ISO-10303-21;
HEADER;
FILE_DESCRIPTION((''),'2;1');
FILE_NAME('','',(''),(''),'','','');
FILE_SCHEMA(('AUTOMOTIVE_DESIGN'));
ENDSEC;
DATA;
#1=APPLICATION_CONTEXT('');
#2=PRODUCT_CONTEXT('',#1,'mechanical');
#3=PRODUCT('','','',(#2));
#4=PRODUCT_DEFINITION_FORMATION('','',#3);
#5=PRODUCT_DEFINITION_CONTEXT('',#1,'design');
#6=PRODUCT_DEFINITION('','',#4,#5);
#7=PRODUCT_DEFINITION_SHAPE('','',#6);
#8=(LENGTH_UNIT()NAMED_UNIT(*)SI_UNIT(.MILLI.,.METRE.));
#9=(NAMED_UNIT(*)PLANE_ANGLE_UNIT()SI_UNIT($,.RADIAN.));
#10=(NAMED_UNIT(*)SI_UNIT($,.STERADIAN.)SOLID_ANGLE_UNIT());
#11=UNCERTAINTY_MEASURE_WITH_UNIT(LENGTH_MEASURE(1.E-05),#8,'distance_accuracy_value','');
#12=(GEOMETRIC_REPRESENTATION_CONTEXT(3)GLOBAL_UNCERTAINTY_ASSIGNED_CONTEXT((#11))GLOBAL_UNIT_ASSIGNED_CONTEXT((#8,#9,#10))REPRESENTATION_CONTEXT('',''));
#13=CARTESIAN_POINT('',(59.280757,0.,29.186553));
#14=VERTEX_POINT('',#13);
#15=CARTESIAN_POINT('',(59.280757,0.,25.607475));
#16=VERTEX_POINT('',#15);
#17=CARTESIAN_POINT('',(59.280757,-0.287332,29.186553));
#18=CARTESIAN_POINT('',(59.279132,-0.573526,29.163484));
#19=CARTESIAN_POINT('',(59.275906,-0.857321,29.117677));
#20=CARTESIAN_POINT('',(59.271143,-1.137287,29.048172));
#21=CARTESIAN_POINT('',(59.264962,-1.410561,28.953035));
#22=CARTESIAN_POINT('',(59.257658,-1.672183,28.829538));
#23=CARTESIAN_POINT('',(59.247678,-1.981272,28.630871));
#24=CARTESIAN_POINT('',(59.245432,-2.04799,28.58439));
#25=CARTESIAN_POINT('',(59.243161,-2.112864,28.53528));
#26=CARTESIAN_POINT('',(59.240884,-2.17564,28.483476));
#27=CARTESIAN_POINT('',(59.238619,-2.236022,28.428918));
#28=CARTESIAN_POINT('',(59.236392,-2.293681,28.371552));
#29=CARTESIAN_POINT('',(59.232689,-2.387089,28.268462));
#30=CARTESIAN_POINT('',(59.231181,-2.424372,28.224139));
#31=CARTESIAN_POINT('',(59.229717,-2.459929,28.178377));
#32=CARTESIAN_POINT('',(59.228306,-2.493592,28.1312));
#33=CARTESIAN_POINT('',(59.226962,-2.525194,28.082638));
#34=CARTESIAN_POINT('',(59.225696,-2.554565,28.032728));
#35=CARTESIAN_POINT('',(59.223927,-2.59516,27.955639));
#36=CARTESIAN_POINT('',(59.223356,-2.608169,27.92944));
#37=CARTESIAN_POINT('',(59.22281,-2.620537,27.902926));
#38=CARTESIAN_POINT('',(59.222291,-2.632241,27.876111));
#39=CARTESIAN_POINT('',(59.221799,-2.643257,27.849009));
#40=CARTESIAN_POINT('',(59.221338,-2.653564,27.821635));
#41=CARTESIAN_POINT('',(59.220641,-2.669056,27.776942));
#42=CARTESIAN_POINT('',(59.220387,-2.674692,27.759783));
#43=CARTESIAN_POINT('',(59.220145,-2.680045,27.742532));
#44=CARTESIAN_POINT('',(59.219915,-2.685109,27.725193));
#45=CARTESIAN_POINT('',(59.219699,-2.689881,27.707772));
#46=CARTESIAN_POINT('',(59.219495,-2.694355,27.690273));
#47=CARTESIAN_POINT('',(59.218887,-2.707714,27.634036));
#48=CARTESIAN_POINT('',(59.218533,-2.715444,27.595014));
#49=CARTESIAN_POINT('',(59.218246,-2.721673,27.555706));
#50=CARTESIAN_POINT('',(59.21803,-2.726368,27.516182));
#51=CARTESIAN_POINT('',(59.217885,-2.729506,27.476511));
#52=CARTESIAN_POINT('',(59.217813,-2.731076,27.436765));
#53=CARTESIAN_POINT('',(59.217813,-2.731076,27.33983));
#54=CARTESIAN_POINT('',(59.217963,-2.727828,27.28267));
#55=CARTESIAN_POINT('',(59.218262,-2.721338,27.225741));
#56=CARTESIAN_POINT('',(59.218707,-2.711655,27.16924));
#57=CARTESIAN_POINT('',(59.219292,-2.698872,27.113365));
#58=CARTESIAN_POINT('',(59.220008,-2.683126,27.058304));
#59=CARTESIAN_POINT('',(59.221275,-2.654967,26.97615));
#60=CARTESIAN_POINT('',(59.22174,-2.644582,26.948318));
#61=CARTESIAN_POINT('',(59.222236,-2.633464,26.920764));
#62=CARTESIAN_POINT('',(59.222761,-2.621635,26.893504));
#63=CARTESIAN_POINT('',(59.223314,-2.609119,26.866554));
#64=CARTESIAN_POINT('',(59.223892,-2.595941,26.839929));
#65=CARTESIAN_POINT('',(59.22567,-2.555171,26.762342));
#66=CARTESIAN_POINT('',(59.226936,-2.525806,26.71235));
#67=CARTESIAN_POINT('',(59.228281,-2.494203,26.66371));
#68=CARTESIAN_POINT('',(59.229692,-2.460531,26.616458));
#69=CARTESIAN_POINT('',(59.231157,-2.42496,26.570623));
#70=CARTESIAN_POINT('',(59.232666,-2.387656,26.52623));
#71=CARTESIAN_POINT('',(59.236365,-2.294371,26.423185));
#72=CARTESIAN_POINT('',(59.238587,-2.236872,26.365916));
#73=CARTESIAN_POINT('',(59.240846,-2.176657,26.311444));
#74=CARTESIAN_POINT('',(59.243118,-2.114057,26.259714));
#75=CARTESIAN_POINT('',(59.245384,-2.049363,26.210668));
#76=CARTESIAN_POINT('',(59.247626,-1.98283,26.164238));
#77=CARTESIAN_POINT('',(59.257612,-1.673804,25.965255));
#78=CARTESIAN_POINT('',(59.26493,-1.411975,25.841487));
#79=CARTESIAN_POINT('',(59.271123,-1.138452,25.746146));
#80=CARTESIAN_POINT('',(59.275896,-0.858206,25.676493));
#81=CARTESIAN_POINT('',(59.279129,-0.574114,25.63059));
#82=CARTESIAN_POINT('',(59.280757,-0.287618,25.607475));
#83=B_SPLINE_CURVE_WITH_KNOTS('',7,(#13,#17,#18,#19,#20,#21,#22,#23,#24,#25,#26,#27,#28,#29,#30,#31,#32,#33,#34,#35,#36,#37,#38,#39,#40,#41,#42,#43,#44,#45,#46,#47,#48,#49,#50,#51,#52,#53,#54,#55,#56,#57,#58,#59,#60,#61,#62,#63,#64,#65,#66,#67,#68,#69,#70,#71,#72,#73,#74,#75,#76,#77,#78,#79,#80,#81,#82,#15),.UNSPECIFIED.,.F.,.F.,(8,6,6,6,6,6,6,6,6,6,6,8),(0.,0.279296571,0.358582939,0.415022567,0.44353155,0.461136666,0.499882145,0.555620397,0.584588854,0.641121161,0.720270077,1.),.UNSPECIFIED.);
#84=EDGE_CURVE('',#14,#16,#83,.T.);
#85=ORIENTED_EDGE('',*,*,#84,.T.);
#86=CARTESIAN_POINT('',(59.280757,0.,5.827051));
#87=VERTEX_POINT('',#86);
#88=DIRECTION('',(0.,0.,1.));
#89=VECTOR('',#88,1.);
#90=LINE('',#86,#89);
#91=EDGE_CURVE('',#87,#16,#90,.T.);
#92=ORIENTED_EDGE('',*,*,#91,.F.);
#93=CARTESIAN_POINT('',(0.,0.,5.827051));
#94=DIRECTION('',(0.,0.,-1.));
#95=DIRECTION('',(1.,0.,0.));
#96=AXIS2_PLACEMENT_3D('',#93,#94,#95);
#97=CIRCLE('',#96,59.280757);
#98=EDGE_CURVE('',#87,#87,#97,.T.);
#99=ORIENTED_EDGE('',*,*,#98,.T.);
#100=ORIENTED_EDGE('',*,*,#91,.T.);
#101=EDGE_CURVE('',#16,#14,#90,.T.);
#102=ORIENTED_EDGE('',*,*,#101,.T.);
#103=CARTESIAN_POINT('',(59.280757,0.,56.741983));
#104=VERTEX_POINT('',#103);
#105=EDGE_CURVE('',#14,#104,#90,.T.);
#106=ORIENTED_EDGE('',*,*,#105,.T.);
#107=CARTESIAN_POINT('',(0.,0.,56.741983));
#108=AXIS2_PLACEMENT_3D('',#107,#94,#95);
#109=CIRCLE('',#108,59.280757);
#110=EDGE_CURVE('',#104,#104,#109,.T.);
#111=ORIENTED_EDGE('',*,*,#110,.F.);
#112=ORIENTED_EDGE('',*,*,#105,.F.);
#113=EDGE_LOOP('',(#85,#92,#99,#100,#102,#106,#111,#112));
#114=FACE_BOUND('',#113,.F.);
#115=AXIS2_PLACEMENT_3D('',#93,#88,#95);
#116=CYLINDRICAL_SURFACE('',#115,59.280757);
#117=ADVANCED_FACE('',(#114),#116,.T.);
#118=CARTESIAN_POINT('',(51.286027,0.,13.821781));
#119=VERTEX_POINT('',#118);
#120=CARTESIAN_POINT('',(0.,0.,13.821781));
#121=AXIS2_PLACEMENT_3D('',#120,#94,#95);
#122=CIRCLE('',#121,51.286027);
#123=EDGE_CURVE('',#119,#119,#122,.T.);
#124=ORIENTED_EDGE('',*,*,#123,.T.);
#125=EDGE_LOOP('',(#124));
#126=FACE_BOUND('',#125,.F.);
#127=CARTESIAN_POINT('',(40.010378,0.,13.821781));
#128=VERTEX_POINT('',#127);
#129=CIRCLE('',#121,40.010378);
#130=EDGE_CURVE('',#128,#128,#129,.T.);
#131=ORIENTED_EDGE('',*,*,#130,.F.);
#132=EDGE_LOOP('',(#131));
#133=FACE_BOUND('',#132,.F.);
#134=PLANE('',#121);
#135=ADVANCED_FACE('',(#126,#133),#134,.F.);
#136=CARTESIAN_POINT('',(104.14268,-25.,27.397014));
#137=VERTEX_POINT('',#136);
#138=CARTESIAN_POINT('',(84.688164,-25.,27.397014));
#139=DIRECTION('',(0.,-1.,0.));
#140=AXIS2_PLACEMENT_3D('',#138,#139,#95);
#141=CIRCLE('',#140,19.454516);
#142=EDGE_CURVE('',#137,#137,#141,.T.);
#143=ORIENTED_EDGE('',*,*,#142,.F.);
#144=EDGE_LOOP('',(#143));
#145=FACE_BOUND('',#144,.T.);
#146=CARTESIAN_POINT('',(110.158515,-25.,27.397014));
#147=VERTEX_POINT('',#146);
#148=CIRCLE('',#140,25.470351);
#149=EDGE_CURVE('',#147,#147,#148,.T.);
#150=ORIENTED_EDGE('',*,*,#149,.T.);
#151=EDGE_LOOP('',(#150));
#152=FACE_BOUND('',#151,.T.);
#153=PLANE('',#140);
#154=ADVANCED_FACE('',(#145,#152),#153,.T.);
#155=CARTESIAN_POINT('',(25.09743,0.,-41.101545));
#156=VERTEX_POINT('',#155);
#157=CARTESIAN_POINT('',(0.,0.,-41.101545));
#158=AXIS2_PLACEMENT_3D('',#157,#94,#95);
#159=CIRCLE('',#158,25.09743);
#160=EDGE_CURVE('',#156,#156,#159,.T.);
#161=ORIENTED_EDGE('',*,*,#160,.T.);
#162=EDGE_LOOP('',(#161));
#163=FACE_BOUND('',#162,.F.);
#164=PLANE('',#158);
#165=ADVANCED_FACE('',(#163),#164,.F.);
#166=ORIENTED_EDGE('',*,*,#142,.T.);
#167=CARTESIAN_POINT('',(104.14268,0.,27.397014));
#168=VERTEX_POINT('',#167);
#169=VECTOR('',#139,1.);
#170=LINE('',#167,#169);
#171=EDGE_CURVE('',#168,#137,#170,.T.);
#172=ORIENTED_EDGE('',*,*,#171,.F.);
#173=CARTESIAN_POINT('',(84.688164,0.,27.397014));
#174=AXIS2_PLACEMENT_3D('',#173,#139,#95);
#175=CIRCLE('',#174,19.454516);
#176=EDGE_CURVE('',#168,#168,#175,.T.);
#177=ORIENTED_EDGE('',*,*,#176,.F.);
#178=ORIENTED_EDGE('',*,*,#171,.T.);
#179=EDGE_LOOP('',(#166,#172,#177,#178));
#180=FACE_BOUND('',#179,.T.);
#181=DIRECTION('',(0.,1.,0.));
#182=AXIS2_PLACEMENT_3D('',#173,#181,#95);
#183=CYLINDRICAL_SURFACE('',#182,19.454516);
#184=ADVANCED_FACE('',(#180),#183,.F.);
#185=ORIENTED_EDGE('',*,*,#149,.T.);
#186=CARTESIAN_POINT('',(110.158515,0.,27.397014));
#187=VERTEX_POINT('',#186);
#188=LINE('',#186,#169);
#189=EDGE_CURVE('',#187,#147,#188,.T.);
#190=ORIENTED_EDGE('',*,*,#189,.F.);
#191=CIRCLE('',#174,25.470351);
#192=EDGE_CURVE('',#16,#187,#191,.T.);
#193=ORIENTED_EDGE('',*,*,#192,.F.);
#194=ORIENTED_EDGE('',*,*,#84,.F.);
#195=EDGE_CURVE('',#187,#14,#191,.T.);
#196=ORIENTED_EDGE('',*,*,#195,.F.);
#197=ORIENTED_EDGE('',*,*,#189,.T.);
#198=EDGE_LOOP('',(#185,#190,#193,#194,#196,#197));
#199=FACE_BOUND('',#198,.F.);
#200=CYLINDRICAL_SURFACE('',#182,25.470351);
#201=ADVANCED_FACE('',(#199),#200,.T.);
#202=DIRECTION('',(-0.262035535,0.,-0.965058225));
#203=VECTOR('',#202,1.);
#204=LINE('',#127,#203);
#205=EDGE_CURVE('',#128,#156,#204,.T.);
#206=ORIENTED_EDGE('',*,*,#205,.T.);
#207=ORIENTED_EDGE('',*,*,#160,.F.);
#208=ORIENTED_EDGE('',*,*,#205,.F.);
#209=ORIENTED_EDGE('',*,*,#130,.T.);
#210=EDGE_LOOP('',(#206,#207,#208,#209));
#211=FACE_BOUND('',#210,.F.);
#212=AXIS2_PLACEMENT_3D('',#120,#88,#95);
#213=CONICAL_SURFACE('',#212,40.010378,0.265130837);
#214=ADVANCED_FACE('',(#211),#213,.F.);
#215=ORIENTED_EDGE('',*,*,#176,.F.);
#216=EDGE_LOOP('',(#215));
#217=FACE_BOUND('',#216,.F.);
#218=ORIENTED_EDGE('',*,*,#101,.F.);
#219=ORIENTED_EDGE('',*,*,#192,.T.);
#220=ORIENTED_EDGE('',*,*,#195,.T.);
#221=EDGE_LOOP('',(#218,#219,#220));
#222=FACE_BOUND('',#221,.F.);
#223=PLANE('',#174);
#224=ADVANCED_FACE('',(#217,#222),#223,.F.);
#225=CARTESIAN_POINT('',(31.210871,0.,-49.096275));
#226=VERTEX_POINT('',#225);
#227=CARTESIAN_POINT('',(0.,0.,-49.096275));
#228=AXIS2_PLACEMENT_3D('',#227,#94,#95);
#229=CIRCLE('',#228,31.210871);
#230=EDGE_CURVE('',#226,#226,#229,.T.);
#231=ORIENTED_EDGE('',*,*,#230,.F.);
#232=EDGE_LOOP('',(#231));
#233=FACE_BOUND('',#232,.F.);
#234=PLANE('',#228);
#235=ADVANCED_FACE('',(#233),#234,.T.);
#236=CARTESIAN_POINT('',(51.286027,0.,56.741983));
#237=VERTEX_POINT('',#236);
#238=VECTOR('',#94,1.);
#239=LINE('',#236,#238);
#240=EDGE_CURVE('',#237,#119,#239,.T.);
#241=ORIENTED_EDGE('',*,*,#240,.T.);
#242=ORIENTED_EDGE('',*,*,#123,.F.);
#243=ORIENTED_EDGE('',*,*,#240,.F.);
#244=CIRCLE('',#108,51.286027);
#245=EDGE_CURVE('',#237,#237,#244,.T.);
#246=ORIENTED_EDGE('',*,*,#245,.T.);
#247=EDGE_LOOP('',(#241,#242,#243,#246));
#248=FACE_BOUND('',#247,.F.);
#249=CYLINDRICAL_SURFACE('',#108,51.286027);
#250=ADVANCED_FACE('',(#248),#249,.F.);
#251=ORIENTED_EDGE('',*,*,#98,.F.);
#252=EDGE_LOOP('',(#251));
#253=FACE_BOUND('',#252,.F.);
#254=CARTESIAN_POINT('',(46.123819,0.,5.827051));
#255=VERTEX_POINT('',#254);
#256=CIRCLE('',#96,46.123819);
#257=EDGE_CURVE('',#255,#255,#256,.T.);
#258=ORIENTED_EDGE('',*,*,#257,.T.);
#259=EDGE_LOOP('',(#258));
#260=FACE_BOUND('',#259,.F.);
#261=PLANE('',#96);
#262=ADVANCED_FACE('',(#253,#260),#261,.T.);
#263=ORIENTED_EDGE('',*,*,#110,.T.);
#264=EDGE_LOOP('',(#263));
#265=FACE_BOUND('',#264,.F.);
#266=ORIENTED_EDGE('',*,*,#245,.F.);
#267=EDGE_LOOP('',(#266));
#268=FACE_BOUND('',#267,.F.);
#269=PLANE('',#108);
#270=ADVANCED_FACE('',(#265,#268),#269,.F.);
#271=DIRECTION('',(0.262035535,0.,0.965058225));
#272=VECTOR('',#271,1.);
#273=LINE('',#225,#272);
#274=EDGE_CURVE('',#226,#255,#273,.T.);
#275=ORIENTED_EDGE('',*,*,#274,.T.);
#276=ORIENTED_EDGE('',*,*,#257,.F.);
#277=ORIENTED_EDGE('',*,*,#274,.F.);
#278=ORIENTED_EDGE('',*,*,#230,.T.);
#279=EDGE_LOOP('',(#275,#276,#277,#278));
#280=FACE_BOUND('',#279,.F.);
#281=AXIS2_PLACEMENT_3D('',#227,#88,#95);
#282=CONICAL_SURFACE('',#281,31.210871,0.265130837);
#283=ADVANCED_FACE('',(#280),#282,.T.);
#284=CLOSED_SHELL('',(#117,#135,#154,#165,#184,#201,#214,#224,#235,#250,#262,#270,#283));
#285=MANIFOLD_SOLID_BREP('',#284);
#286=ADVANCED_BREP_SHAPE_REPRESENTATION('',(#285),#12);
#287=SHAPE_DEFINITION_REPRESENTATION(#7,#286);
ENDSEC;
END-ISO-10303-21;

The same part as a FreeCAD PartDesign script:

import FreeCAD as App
import Part
import Sketcher

V = App.Vector
Q = App.Units.Quantity


def add_polygon(sketch, points):
    """Adds a closed chain of lines whose ends are joined by coincident constraints."""
    first, n = sketch.GeometryCount, len(points)
    for a, b in zip(points, points[1:] + points[:1]):
        sketch.addGeometry(Part.LineSegment(App.Vector(*a, 0), App.Vector(*b, 0)), False)
    for i in range(n):
        sketch.addConstraint(Sketcher.Constraint("Coincident", first + i, 2, first + (i + 1) % n, 1))

doc = App.newDocument("Part")
body = doc.addObject("PartDesign::Body", "Body")

# Sketch on XZ plane
sketch1 = doc.addObject("Sketcher::SketchObject", "Sketch")
body.addObject(sketch1)
sketch1.AttachmentSupport = (doc.XZ_Plane, [""])
sketch1.MapMode = "FlatFace"
add_polygon(sketch1, [(25, -41), (0, -41), (0, -49), (31, -49), (46, 6), (59, 6), (59, 57), (51, 57), (51, 14), (40, 14)])  # lines 0-9
sketch1.addConstraint(Sketcher.Constraint("Horizontal", 0))
sketch1.addConstraint(Sketcher.Constraint("Vertical", 1))
sketch1.addConstraint(Sketcher.Constraint("Horizontal", 2))
sketch1.addConstraint(Sketcher.Constraint("Horizontal", 4))
sketch1.addConstraint(Sketcher.Constraint("Vertical", 5))
sketch1.addConstraint(Sketcher.Constraint("Horizontal", 6))
sketch1.addConstraint(Sketcher.Constraint("Vertical", 7))
sketch1.addConstraint(Sketcher.Constraint("Horizontal", 8))
sketch1.addConstraint(Sketcher.Constraint("PointOnObject", 0, 2, -2))
sketch1.addConstraint(Sketcher.Constraint("Parallel", 3, 9))
sketch1.addConstraint(Sketcher.Constraint("Equal", 6, 1))
sketch1.addConstraint(Sketcher.Constraint("Equal", 3, 9))
sketch1.addConstraint(Sketcher.Constraint("DistanceY", 7, 2, 7, 1, Q("42.920202 mm")))
sketch1.addConstraint(Sketcher.Constraint("DistanceX", 0, 2, 0, 1, Q("25.09743 mm")))
sketch1.addConstraint(Sketcher.Constraint("DistanceX", 2, 1, 2, 2, Q("31.210871 mm")))
sketch1.addConstraint(Sketcher.Constraint("DistanceX", 4, 1, 4, 2, Q("13.156938 mm")))
sketch1.addConstraint(Sketcher.Constraint("DistanceX", 6, 2, 6, 1, Q("7.99473 mm")))
sketch1.addConstraint(Sketcher.Constraint("Distance", 3, Q("56.91193 mm")))
sketch1.addConstraint(Sketcher.Constraint("DistanceX", -1, 1, 3, 2, Q("46.123819 mm")))
sketch1.addConstraint(Sketcher.Constraint("DistanceY", -1, 1, 3, 2, Q("5.827051 mm")))
revolution = doc.addObject("PartDesign::Revolution", "Revolution")
body.addObject(revolution)
revolution.Profile = sketch1
revolution.ReferenceAxis = (sketch1, ["V_Axis"])
revolution.Angle = 360

# Sketch on XZ plane
sketch2 = doc.addObject("Sketcher::SketchObject", "Sketch001")
body.addObject(sketch2)
sketch2.AttachmentSupport = (doc.XZ_Plane, [""])
sketch2.MapMode = "FlatFace"
sketch2.addGeometry(Part.Circle(V(85, 27, 0), V(0, 0, 1), 25), False)
sketch2.addGeometry(Part.Circle(V(85, 27, 0), V(0, 0, 1), 19), False)
sketch2.addConstraint(Sketcher.Constraint("Coincident", 1, 3, 0, 3))
sketch2.addConstraint(Sketcher.Constraint("Diameter", 0, Q("50.940702 mm")))
sketch2.addConstraint(Sketcher.Constraint("Diameter", 1, Q("38.909032 mm")))
sketch2.addConstraint(Sketcher.Constraint("DistanceX", -1, 1, 0, 3, Q("84.688164 mm")))
sketch2.addConstraint(Sketcher.Constraint("DistanceY", -1, 1, 0, 3, Q("27.397014 mm")))
pad1 = doc.addObject("PartDesign::Pad", "Pad")
body.addObject(pad1)
pad1.Profile = sketch2
pad1.Length = 25

doc.recompute()
